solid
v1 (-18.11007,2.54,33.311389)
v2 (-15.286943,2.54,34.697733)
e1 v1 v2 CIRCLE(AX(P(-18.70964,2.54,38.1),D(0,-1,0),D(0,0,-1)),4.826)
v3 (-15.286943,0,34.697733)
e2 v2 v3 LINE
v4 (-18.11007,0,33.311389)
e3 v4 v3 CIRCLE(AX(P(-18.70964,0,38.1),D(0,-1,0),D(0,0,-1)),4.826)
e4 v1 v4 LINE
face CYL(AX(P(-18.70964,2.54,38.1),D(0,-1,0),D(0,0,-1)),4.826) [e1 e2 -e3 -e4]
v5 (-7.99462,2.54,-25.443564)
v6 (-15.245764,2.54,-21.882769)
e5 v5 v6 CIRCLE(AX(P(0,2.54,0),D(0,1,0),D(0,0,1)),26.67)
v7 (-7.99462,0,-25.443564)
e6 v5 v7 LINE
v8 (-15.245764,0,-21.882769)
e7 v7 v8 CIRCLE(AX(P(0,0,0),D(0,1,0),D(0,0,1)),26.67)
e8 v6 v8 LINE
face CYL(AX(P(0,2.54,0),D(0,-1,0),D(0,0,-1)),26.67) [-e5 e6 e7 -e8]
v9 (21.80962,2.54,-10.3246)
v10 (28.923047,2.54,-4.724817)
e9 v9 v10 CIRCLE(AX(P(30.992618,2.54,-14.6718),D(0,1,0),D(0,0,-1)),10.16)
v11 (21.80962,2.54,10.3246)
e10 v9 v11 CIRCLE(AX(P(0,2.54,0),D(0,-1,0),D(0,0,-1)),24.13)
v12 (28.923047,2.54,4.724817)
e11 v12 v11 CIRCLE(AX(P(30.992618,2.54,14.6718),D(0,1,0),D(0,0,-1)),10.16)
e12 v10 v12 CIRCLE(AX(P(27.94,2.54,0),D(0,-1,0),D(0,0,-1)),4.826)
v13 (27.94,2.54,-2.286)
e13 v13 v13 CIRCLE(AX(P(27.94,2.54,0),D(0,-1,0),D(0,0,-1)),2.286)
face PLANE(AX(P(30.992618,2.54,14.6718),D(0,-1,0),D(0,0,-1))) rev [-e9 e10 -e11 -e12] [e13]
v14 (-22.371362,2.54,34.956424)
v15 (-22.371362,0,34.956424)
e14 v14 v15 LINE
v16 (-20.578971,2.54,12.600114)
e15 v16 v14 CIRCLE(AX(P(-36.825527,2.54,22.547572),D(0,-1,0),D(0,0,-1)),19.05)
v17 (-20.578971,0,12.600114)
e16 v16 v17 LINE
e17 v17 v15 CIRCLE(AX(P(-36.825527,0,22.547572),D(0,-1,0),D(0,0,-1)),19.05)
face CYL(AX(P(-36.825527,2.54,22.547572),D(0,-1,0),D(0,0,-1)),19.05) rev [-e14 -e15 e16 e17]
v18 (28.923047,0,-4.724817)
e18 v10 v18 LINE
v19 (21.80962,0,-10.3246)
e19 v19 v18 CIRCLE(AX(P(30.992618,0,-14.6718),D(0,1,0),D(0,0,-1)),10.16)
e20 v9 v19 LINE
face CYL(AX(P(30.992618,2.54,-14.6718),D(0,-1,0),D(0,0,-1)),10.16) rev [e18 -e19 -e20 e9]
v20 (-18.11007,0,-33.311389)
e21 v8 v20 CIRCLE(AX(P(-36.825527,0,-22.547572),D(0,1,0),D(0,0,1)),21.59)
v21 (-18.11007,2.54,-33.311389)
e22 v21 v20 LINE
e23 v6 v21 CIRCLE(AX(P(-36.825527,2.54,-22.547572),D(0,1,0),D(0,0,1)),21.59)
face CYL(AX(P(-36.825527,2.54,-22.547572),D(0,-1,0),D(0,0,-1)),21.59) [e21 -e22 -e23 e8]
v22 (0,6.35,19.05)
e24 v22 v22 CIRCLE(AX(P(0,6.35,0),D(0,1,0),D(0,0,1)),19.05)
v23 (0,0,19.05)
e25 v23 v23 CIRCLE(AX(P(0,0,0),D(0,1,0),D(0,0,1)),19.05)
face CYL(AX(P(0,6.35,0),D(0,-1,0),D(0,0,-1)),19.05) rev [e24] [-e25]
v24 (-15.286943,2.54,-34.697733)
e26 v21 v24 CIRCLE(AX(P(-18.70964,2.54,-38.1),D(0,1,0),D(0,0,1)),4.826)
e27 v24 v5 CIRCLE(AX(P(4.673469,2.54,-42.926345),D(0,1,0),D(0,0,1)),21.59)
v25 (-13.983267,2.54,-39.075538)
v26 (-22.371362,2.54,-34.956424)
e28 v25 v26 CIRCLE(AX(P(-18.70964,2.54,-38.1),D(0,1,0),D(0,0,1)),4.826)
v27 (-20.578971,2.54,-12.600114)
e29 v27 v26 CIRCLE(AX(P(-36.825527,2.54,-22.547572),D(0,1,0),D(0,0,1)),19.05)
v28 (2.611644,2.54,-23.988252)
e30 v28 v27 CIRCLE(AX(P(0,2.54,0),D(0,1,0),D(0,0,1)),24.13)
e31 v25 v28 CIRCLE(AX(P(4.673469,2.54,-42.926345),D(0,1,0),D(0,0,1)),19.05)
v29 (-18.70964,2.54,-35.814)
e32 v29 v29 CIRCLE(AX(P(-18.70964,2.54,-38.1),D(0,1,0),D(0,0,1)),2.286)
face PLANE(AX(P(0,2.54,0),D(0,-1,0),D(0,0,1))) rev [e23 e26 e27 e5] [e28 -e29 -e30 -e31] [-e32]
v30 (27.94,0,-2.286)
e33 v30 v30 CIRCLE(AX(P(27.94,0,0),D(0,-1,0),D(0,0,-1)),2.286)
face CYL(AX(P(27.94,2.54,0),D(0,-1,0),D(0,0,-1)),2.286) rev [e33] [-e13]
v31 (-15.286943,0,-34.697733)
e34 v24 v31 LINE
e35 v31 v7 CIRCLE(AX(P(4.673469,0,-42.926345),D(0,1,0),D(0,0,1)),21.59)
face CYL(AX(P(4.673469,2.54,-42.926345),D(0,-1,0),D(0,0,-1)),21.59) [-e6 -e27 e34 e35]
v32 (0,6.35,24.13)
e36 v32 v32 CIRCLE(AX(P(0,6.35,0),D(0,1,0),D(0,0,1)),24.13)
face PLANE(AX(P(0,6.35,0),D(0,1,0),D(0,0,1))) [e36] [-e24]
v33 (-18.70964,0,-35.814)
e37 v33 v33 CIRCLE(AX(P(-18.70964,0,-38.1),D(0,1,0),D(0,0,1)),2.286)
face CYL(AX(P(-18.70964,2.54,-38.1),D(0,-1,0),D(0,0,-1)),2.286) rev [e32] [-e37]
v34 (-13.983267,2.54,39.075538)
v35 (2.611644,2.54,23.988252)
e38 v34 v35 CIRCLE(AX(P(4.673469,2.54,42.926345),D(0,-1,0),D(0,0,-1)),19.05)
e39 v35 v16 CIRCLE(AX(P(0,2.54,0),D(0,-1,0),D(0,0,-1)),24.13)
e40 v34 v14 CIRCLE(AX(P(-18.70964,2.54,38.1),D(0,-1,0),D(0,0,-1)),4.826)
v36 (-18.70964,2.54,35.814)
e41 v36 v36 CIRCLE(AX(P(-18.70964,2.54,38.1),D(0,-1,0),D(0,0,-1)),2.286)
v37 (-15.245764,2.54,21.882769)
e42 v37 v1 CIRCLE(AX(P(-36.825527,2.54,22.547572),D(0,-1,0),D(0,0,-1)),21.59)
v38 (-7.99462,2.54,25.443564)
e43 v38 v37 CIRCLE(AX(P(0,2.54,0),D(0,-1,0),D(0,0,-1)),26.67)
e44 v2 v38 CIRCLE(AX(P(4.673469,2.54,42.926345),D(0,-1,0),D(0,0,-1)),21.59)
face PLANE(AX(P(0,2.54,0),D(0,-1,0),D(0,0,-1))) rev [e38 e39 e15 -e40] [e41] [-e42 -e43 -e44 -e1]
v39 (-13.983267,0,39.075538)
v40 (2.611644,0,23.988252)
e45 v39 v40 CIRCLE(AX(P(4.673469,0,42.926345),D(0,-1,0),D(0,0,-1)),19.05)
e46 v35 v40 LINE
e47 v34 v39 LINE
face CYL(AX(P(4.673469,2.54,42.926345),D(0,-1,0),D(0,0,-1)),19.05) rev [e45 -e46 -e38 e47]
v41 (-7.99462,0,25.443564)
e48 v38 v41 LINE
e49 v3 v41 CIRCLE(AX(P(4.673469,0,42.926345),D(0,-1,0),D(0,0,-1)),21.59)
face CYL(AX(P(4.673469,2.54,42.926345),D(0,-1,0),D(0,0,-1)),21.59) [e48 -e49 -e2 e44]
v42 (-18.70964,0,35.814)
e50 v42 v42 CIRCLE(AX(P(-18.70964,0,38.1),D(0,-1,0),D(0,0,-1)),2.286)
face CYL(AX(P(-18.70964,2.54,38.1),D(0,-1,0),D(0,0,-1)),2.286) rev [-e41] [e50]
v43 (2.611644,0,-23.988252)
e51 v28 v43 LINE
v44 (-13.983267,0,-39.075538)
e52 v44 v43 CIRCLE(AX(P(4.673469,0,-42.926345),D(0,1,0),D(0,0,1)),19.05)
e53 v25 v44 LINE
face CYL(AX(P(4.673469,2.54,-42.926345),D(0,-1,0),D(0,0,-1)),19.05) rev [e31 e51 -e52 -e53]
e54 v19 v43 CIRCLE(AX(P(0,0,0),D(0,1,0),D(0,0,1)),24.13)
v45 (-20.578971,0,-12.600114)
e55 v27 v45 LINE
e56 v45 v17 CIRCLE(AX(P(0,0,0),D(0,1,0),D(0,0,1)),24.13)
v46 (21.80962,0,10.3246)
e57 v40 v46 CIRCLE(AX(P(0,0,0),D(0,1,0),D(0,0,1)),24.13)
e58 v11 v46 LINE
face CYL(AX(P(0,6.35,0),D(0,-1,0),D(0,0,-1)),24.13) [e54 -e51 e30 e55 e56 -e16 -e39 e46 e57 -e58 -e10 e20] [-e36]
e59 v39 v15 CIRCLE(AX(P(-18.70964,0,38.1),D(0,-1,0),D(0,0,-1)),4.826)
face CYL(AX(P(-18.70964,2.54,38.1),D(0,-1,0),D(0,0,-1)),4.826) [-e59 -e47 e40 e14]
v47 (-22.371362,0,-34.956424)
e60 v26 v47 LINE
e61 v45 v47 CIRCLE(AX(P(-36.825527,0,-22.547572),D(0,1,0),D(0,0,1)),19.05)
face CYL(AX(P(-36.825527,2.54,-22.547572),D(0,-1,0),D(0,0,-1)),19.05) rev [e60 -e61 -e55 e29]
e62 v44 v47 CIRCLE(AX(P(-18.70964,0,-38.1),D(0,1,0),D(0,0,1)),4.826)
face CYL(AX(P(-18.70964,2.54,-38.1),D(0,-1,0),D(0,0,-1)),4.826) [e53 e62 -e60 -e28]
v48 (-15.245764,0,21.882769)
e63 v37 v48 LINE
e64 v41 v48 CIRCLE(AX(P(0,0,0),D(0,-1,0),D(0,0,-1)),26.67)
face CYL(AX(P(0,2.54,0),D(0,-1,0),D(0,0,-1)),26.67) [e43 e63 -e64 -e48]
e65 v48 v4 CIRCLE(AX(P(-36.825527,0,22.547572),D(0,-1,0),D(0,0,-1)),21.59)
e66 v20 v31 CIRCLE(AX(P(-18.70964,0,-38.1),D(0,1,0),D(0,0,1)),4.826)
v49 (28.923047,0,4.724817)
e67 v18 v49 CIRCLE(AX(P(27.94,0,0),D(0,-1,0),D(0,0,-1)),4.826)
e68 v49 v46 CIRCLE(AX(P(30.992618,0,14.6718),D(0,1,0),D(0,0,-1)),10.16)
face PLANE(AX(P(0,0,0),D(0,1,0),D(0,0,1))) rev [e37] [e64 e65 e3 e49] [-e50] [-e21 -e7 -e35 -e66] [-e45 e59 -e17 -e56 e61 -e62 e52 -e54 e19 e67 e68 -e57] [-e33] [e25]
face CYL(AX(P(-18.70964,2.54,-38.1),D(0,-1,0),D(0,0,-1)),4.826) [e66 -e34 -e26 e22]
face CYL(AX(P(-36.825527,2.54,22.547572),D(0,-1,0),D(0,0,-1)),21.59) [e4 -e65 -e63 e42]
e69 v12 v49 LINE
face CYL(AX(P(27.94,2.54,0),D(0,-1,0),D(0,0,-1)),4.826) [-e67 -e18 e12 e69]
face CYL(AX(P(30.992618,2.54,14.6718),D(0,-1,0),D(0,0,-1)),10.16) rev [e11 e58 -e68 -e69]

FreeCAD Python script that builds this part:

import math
import FreeCAD as App
import Part
import Sketcher
from FreeCAD import Vector
Q = App.Units.Quantity

doc = App.newDocument("Part")
body = doc.addObject("PartDesign::Body", "Body")

# Sketch on XZ plane
sketch1 = body.newObject("Sketcher::SketchObject", "Sketch")
sketch1.AttachmentSupport = (doc.getObject("XZ_Plane"), [""])
sketch1.MapMode = "FlatFace"
sketch1.addGeometry([
    Part.Circle(Vector(0, 0, 0), Vector(0, 0, 1), 24),
    Part.Circle(Vector(0, 0, 0), Vector(0, 0, 1), 19),
], False)
sketch1.addConstraint([
    Sketcher.Constraint("Coincident", 0, 3, -1, 1),
    Sketcher.Constraint("Coincident", 1, 3, -1, 1),
    Sketcher.Constraint("Diameter", 0, Q("1.9 in")),
    Sketcher.Constraint("Diameter", 1, Q("1.5 in")),
])
pad1 = body.newObject("PartDesign::Pad", "Pad")
pad1.Profile = sketch1
pad1.Length = Q("0.25 in")
pad1.Reversed = True

# Sketch on XZ plane
sketch2 = body.newObject("Sketcher::SketchObject", "Sketch001")
sketch2.AttachmentSupport = (doc.getObject("XZ_Plane"), [""])
sketch2.MapMode = "FlatFace"
sketch2.addGeometry([
    Part.LineSegment(Vector(21.8, 10.3, 0), Vector(21.8, -10.3, 0)),  # 0
    Part.ArcOfCircle(Part.Circle(Vector(31, -14.7, 0), Vector(0, 0, 1), 10.2), math.radians(102), math.radians(155)),  # 1
    Part.ArcOfCircle(Part.Circle(Vector(27.9, 0, 0), Vector(0, 0, 1), 4.8), math.radians(-78), math.radians(78)),  # 2
    Part.ArcOfCircle(Part.Circle(Vector(31, 14.7, 0), Vector(0, 0, 1), 10.2), math.radians(-155), math.radians(-102)),  # 3
    Part.Circle(Vector(27.9, 0, 0), Vector(0, 0, 1), 2.3),  # 4
], False)
sketch2.addConstraint([
    Sketcher.Constraint("Coincident", 0, 2, 1, 2),
    Sketcher.Constraint("Tangent", 1, 1, 2, 1),
    Sketcher.Constraint("Tangent", 2, 2, 3, 2),
    Sketcher.Constraint("Coincident", 3, 1, 0, 1),
    Sketcher.Constraint("Vertical", 0),
    Sketcher.Constraint("Coincident", 4, 3, 2, 3),
    Sketcher.Constraint("Equal", 1, 3),
    Sketcher.Constraint("Symmetric", 1, 3, 3, 3, -1),
    Sketcher.Constraint("Radius", 1, Q("0.4 in")),
    Sketcher.Constraint("Diameter", 4, Q("0.18 in")),
    Sketcher.Constraint("Radius", 2, Q("0.19 in")),
    Sketcher.Constraint("DistanceX", -1, 1, 2, 3, Q("1.1 in")),
    Sketcher.Constraint("DistanceY", 0, 2, 0, 1, Q("20.6492 mm")),
    Sketcher.Constraint("DistanceY", 1, 3, -1, 1, Q("14.6718 mm")),
])
pad2 = body.newObject("PartDesign::Pad", "Pad001")
pad2.Profile = sketch2
pad2.Length = Q("0.1 in")
pad2.Reversed = True

# Sketch on XZ plane
sketch3 = body.newObject("Sketcher::SketchObject", "Sketch002")
sketch3.AttachmentSupport = (doc.getObject("XZ_Plane"), [""])
sketch3.MapMode = "FlatFace"
sketch3.addGeometry([
    Part.ArcOfCircle(Part.Circle(Vector(-36.8, 22.5, 0), Vector(0, 0, 1), 19.1), math.radians(-31), math.radians(41)),  # 0
    Part.ArcOfCircle(Part.Circle(Vector(0, 0, 0), Vector(0, 0, 1), 24.1), math.radians(84), math.radians(149)),  # 1
    Part.ArcOfCircle(Part.Circle(Vector(4.7, 42.9, 0), Vector(0, 0, 1), 19.1), math.radians(-168), math.radians(-96)),  # 2
    Part.ArcOfCircle(Part.Circle(Vector(-18.7, 38.1, 0), Vector(0, 0, 1), 4.8), math.radians(12), math.radians(221)),  # 3
    Part.ArcOfCircle(Part.Circle(Vector(4.7, 42.9, 0), Vector(0, 0, 1), 21.6), math.radians(-158), math.radians(-126)),  # 4
    Part.ArcOfCircle(Part.Circle(Vector(0, 0, 0), Vector(0, 0, 1), 26.7), math.radians(107.44), math.radians(124.86)),  # 5
    Part.ArcOfCircle(Part.Circle(Vector(-36.8, 22.5, 0), Vector(0, 0, 1), 21.6), math.radians(-2), math.radians(30)),  # 6
    Part.ArcOfCircle(Part.Circle(Vector(-18.7, 38.1, 0), Vector(0, 0, 1), 4.8), math.radians(-83), math.radians(-45)),  # 7
    Part.Circle(Vector(-18.7, 38.1, 0), Vector(0, 0, 1), 2.3),  # 8
], False)
sketch3.addConstraint([
    Sketcher.Constraint("Tangent", 0, 1, 1, 2),
    Sketcher.Constraint("Tangent", 1, 1, 2, 2),
    Sketcher.Constraint("Tangent", 2, 1, 3, 1),
    Sketcher.Constraint("Tangent", 3, 2, 0, 2),
    Sketcher.Constraint("Coincident", 4, 2, 5, 1),
    Sketcher.Constraint("Coincident", 5, 2, 6, 1),
    Sketcher.Constraint("Coincident", 6, 2, 7, 1),
    Sketcher.Constraint("Coincident", 7, 2, 4, 1),
    Sketcher.Constraint("Coincident", 1, 3, -1, 1),
    Sketcher.Constraint("Coincident", 5, 3, -1, 1),
    Sketcher.Constraint("Coincident", 4, 3, 2, 3),
    Sketcher.Constraint("Coincident", 6, 3, 0, 3),
    Sketcher.Constraint("Coincident", 7, 3, 3, 3),
    Sketcher.Constraint("Coincident", 8, 3, 3, 3),
    Sketcher.Constraint("Equal", 0, 2),
    Sketcher.Constraint("Equal", 4, 6),
    Sketcher.Constraint("Equal", 3, 7),
    Sketcher.Constraint("Diameter", 8, Q("0.18 in")),
    Sketcher.Constraint("Radius", 0, Q("0.75 in")),
    Sketcher.Constraint("Radius", 1, Q("0.95 in")),
    Sketcher.Constraint("Radius", 3, Q("0.19 in")),
    Sketcher.Constraint("Radius", 4, Q("0.85 in")),
    Sketcher.Constraint("Radius", 5, Q("1.05 in")),
    Sketcher.Constraint("DistanceY", -1, 1, 3, 3, Q("1.5 in")),
    Sketcher.Constraint("DistanceX", 3, 3, -1, 1, Q("0.7366 in")),
])
pad3 = body.newObject("PartDesign::Pad", "Pad002")
pad3.Profile = sketch3
pad3.Length = Q("0.1 in")
pad3.Reversed = True
doc.recompute()

mirrored = body.newObject("PartDesign::Mirrored", "Mirrored")
mirrored.Originals = [pad3]
mirrored.MirrorPlane = (doc.getObject("XY_Plane"), [""])
body.Tip = mirrored

doc.recompute()
